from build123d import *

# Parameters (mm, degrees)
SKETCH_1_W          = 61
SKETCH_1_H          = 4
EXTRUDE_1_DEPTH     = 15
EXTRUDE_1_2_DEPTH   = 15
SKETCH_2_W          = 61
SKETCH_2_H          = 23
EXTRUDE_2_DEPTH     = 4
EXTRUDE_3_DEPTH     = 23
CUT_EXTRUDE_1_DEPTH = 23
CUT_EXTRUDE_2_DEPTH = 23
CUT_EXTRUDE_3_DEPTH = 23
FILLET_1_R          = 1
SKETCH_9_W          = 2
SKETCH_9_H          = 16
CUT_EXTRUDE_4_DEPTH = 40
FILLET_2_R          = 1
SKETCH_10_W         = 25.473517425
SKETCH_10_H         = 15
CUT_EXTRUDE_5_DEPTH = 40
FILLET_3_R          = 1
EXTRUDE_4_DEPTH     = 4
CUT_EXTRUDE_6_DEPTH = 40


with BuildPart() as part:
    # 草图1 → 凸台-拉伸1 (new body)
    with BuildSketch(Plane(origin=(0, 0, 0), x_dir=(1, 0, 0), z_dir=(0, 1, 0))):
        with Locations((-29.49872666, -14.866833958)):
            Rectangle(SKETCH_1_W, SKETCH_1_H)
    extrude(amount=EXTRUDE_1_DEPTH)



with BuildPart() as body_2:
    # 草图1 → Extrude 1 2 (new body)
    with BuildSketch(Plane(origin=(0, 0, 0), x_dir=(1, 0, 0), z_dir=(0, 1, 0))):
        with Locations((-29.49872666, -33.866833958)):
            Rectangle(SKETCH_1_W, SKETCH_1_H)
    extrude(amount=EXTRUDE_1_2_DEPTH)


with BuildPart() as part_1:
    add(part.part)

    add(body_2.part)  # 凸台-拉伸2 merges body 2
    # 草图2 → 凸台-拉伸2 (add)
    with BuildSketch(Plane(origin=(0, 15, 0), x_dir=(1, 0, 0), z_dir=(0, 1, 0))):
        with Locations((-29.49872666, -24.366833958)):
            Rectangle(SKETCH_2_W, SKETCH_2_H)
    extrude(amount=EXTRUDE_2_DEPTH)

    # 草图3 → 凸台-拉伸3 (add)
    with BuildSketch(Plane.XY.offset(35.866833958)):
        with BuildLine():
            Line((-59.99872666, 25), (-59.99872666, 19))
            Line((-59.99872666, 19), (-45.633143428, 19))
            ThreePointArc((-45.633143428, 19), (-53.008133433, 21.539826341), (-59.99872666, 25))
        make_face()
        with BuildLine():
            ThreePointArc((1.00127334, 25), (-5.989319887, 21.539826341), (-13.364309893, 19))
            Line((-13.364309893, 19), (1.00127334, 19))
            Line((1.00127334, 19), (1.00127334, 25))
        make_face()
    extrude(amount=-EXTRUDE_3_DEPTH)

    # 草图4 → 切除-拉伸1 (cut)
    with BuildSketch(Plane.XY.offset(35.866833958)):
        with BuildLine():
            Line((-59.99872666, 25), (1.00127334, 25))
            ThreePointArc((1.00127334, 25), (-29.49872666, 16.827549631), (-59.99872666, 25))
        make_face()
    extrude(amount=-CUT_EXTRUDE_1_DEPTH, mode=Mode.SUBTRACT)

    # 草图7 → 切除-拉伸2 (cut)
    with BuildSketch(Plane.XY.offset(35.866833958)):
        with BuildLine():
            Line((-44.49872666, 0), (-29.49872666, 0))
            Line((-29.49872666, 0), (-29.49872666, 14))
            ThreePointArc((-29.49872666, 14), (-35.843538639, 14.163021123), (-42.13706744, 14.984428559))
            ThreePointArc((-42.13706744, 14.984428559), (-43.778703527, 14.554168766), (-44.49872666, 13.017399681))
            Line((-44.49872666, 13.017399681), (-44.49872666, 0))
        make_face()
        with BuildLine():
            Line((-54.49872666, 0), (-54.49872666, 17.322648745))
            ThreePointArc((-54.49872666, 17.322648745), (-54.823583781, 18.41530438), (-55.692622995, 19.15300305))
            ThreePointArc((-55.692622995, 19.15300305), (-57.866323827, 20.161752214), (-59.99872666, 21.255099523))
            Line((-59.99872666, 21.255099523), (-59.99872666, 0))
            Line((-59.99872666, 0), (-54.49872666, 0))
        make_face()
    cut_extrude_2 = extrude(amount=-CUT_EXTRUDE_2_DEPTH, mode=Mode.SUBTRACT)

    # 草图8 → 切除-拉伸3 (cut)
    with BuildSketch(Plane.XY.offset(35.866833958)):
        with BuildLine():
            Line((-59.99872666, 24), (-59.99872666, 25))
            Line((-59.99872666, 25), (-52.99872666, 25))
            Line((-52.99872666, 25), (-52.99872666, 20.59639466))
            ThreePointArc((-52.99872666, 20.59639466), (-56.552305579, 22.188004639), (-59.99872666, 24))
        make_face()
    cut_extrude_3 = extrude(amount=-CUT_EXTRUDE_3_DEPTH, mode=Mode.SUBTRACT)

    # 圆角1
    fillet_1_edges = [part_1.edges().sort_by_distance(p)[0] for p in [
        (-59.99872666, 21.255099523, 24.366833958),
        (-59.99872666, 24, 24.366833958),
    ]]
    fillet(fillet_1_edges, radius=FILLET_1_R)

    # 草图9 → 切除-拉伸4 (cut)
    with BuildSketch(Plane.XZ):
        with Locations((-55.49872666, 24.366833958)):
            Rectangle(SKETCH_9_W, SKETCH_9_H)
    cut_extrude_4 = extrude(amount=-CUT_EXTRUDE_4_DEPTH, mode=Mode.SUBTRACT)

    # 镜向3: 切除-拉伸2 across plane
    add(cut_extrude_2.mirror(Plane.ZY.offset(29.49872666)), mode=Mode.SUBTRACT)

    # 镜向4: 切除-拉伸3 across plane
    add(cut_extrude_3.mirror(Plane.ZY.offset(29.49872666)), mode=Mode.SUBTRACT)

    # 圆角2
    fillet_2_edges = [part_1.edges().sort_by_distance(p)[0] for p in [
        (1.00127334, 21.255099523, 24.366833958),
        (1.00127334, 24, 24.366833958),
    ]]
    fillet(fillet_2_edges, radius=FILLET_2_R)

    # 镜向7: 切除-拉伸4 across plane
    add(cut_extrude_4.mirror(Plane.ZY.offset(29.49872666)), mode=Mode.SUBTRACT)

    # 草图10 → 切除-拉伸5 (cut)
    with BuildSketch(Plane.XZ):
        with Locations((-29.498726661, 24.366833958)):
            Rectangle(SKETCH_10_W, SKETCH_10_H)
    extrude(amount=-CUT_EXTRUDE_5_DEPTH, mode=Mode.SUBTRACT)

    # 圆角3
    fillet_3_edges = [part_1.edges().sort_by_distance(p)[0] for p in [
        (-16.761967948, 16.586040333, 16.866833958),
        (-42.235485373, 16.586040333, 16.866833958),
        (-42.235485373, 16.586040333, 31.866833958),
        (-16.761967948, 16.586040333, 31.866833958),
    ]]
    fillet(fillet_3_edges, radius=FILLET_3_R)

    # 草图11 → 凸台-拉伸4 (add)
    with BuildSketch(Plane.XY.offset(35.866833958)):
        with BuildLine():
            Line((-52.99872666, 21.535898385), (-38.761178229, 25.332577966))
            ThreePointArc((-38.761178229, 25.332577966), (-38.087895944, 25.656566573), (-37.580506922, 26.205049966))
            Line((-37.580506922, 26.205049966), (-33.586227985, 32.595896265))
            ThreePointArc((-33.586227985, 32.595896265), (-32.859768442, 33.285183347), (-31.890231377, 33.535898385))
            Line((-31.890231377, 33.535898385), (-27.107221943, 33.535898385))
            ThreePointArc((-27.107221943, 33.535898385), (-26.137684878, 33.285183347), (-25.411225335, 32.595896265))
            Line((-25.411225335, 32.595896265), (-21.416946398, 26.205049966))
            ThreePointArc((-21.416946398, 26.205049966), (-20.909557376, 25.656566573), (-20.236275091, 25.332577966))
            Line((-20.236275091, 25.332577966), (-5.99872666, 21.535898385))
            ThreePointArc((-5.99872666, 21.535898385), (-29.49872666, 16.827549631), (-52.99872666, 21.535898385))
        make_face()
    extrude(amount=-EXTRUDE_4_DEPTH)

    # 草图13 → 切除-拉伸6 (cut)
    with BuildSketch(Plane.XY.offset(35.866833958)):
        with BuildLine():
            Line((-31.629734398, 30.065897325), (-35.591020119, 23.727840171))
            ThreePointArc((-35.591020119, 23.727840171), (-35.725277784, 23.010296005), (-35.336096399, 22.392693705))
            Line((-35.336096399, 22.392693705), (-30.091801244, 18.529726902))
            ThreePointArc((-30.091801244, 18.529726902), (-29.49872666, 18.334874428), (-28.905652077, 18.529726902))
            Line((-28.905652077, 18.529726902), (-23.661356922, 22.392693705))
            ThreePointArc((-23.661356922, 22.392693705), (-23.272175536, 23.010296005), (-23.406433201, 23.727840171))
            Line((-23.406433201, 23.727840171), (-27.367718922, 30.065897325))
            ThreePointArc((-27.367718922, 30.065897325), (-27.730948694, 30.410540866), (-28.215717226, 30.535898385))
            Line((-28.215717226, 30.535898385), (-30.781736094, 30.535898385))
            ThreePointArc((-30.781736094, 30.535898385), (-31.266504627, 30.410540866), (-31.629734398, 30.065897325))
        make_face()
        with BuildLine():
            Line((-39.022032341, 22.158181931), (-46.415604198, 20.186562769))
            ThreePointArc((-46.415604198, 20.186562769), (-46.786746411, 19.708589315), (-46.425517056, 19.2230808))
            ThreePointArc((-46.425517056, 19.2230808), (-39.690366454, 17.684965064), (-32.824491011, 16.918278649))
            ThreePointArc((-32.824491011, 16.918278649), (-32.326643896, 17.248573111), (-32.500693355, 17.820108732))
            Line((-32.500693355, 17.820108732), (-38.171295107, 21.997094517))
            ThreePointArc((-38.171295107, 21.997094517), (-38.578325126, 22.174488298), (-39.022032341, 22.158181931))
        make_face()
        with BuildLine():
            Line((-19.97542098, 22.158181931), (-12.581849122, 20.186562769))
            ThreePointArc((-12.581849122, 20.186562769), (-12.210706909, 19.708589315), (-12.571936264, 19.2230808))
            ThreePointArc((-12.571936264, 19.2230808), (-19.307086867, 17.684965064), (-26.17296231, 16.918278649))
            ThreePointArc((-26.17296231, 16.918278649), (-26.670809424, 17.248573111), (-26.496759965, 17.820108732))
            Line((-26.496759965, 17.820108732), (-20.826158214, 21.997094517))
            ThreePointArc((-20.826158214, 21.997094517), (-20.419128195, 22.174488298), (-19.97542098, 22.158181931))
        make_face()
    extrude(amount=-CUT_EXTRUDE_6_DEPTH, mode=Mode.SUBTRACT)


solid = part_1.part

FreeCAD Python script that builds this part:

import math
import FreeCAD as App
import Part
import Sketcher

V = App.Vector
Q = App.Units.Quantity


def edges_at(feature, points):
    """Names of the edges that pass closest to the given points."""
    edges = feature.Shape.Edges
    near = lambda p: min(range(len(edges)), key=lambda i: edges[i].distToShape(Part.Vertex(*p))[0])
    return sorted({f"Edge{near(p) + 1}" for p in points})

doc = App.newDocument("Part")
body = doc.addObject("PartDesign::Body", "Body")

sketch1 = body.newObject("Sketcher::SketchObject", "Sketch")
sketch1.AttachmentSupport = (doc.getObject("XZ_Plane"), [""])
sketch1.MapMode = "FlatFace"
sketch1.addGeometry(Part.LineSegment(V(-60, 12.9, 0), V(-60, 16.9, 0)), False)
sketch1.addGeometry(Part.LineSegment(V(-60, 16.9, 0), V(1, 16.9, 0)), False)
sketch1.addGeometry(Part.LineSegment(V(1, 16.9, 0), V(1, 12.9, 0)), False)
sketch1.addGeometry(Part.LineSegment(V(1, 12.9, 0), V(-60, 12.9, 0)), False)
sketch1.addConstraint(Sketcher.Constraint("Coincident", 0, 2, 1, 1))
sketch1.addConstraint(Sketcher.Constraint("Coincident", 1, 2, 2, 1))
sketch1.addConstraint(Sketcher.Constraint("Coincident", 2, 2, 3, 1))
sketch1.addConstraint(Sketcher.Constraint("Coincident", 3, 2, 0, 1))
sketch1.addConstraint(Sketcher.Constraint("Vertical", 0))
sketch1.addConstraint(Sketcher.Constraint("Horizontal", 1))
sketch1.addConstraint(Sketcher.Constraint("Vertical", 2))
sketch1.addConstraint(Sketcher.Constraint("Horizontal", 3))
sketch1.addConstraint(Sketcher.Constraint("DistanceX", 1, 1, 1, 2, Q("61 mm")))
sketch1.addConstraint(Sketcher.Constraint("DistanceY", 0, 1, 0, 2, Q("4 mm")))
sketch1.addConstraint(Sketcher.Constraint("DistanceX", 0, 2, -1, 1, Q("59.998727 mm")))
sketch1.addConstraint(Sketcher.Constraint("DistanceY", -1, 1, 0, 2, Q("16.866834 mm")))
pad1 = body.newObject("PartDesign::Pad", "Pad")
pad1.Profile = sketch1
pad1.Length = 15
pad1.Reversed = True
body2 = doc.addObject("PartDesign::Body", "Body001")

sketch2 = body2.newObject("Sketcher::SketchObject", "Sketch001")
sketch2.AttachmentSupport = (doc.getObject("XZ_Plane001"), [""])
sketch2.MapMode = "FlatFace"
sketch2.addGeometry(Part.LineSegment(V(-60, 31.9, 0), V(-60, 35.9, 0)), False)
sketch2.addGeometry(Part.LineSegment(V(-60, 35.9, 0), V(1, 35.9, 0)), False)
sketch2.addGeometry(Part.LineSegment(V(1, 35.9, 0), V(1, 31.9, 0)), False)
sketch2.addGeometry(Part.LineSegment(V(1, 31.9, 0), V(-60, 31.9, 0)), False)
sketch2.addConstraint(Sketcher.Constraint("Coincident", 0, 2, 1, 1))
sketch2.addConstraint(Sketcher.Constraint("Coincident", 1, 2, 2, 1))
sketch2.addConstraint(Sketcher.Constraint("Coincident", 2, 2, 3, 1))
sketch2.addConstraint(Sketcher.Constraint("Coincident", 3, 2, 0, 1))
sketch2.addConstraint(Sketcher.Constraint("Vertical", 0))
sketch2.addConstraint(Sketcher.Constraint("Horizontal", 1))
sketch2.addConstraint(Sketcher.Constraint("Vertical", 2))
sketch2.addConstraint(Sketcher.Constraint("Horizontal", 3))
sketch2.addConstraint(Sketcher.Constraint("DistanceX", 1, 1, 1, 2, Q("61 mm")))
sketch2.addConstraint(Sketcher.Constraint("DistanceY", 0, 1, 0, 2, Q("4 mm")))
sketch2.addConstraint(Sketcher.Constraint("DistanceX", 0, 2, -1, 1, Q("59.998727 mm")))
sketch2.addConstraint(Sketcher.Constraint("DistanceY", -1, 1, 0, 2, Q("35.866834 mm")))
pad2 = body2.newObject("PartDesign::Pad", "Pad001")
pad2.Profile = sketch2
pad2.Length = 15
pad2.Reversed = True
body.AllowCompound = True
doc.recompute()

boolean = body.newObject("PartDesign::Boolean", "Boolean")
boolean.Type = "Fuse"
boolean.addObjects([body2])

sketch3 = body.newObject("Sketcher::SketchObject", "Sketch002")
sketch3.AttachmentSupport = (doc.getObject("XZ_Plane"), [""])
sketch3.MapMode = "FlatFace"
sketch3.AttachmentOffset = App.Placement(V(0, 0, -15), App.Rotation())
sketch3.addGeometry(Part.LineSegment(V(-60, 13, 0), V(-60, 36, 0)), False)
sketch3.addGeometry(Part.LineSegment(V(-60, 36, 0), V(1, 36, 0)), False)
sketch3.addGeometry(Part.LineSegment(V(1, 36, 0), V(1, 13, 0)), False)
sketch3.addGeometry(Part.LineSegment(V(1, 13, 0), V(-60, 13, 0)), False)
sketch3.addConstraint(Sketcher.Constraint("Coincident", 0, 2, 1, 1))
sketch3.addConstraint(Sketcher.Constraint("Coincident", 1, 2, 2, 1))
sketch3.addConstraint(Sketcher.Constraint("Coincident", 2, 2, 3, 1))
sketch3.addConstraint(Sketcher.Constraint("Coincident", 3, 2, 0, 1))
sketch3.addConstraint(Sketcher.Constraint("Vertical", 0))
sketch3.addConstraint(Sketcher.Constraint("Horizontal", 1))
sketch3.addConstraint(Sketcher.Constraint("Vertical", 2))
sketch3.addConstraint(Sketcher.Constraint("Horizontal", 3))
sketch3.addConstraint(Sketcher.Constraint("DistanceX", 1, 1, 1, 2, Q("61 mm")))
sketch3.addConstraint(Sketcher.Constraint("DistanceY", 0, 1, 0, 2, Q("23 mm")))
sketch3.addConstraint(Sketcher.Constraint("DistanceX", 0, 2, -1, 1, Q("59.998727 mm")))
sketch3.addConstraint(Sketcher.Constraint("DistanceY", -1, 1, 0, 2, Q("35.866834 mm")))
pad3 = body.newObject("PartDesign::Pad", "Pad002")
pad3.Profile = sketch3
pad3.Length = 4
pad3.Reversed = True

sketch4 = body.newObject("Sketcher::SketchObject", "Sketch003")
sketch4.AttachmentSupport = (doc.getObject("XY_Plane"), [""])
sketch4.MapMode = "FlatFace"
sketch4.AttachmentOffset = App.Placement(V(0, 0, 35.866834), App.Rotation())
sketch4.addGeometry(Part.LineSegment(V(-60, 25, 0), V(-60, 19, 0)), False)
sketch4.addGeometry(Part.LineSegment(V(-60, 19, 0), V(-46, 19, 0)), False)
sketch4.addGeometry(Part.ArcOfCircle(Part.Circle(V(-29, 78, 0), V(0, 0, 1), 61), math.radians(-120), math.radians(-105.34)), False)
sketch4.addGeometry(Part.ArcOfCircle(Part.Circle(V(-29, 78, 0), V(0, 0, 1), 61), math.radians(-74.66), math.radians(-60)), False)
sketch4.addGeometry(Part.LineSegment(V(-13, 19, 0), V(1, 19, 0)), False)
sketch4.addGeometry(Part.LineSegment(V(1, 19, 0), V(1, 25, 0)), False)
sketch4.addConstraint(Sketcher.Constraint("Coincident", 0, 2, 1, 1))
sketch4.addConstraint(Sketcher.Constraint("Coincident", 1, 2, 2, 2))
sketch4.addConstraint(Sketcher.Constraint("Coincident", 2, 1, 0, 1))
sketch4.addConstraint(Sketcher.Constraint("Coincident", 3, 1, 4, 1))
sketch4.addConstraint(Sketcher.Constraint("Coincident", 4, 2, 5, 1))
sketch4.addConstraint(Sketcher.Constraint("Coincident", 5, 2, 3, 2))
sketch4.addConstraint(Sketcher.Constraint("Vertical", 0))
sketch4.addConstraint(Sketcher.Constraint("Horizontal", 1))
sketch4.addConstraint(Sketcher.Constraint("Horizontal", 4))
sketch4.addConstraint(Sketcher.Constraint("Vertical", 5))
sketch4.addConstraint(Sketcher.Constraint("Coincident", 3, 3, 2, 3))
sketch4.addConstraint(Sketcher.Constraint("Equal", 2, 3))
sketch4.addConstraint(Sketcher.Constraint("Horizontal", 1, 2, 3, 1))
sketch4.addConstraint(Sketcher.Constraint("Horizontal", 2, 1, 5, 2))
sketch4.addConstraint(Sketcher.Constraint("Radius", 2, Q("61 mm")))
sketch4.addConstraint(Sketcher.Constraint("DistanceY", 0, 2, 0, 1, Q("6 mm")))
sketch4.addConstraint(Sketcher.Constraint("DistanceY", -1, 1, 0, 2, Q("19 mm")))
sketch4.addConstraint(Sketcher.Constraint("DistanceX", 0, 2, 4, 2, Q("61 mm")))
sketch4.addConstraint(Sketcher.Constraint("DistanceX", 3, 1, -1, 1, Q("13.36431 mm")))
pad4 = body.newObject("PartDesign::Pad", "Pad003")
pad4.Profile = sketch4
pad4.Length = 23
pad4.Reversed = True

sketch5 = body.newObject("Sketcher::SketchObject", "Sketch004")
sketch5.AttachmentSupport = (doc.getObject("XY_Plane"), [""])
sketch5.MapMode = "FlatFace"
sketch5.AttachmentOffset = App.Placement(V(0, 0, 35.866834), App.Rotation())
sketch5.addGeometry(Part.LineSegment(V(1, 25, 0), V(-60, 25, 0)), False)
sketch5.addGeometry(Part.ArcOfCircle(Part.Circle(V(-29, 78, 0), V(0, 0, 1), 61), math.radians(-120), math.radians(-60)), False)
sketch5.addConstraint(Sketcher.Constraint("Coincident", 0, 1, 1, 2))
sketch5.addConstraint(Sketcher.Constraint("Coincident", 1, 1, 0, 2))
sketch5.addConstraint(Sketcher.Constraint("Horizontal", 0))
sketch5.addConstraint(Sketcher.Constraint("Radius", 1, Q("61 mm")))
sketch5.addConstraint(Sketcher.Constraint("DistanceX", 0, 2, 0, 1, Q("61 mm")))
sketch5.addConstraint(Sketcher.Constraint("DistanceY", -1, 1, 0, 1, Q("25 mm")))
sketch5.addConstraint(Sketcher.Constraint("DistanceX", 1, 3, -1, 1, Q("29.498727 mm")))
pocket1 = body.newObject("PartDesign::Pocket", "Pocket")
pocket1.Profile = sketch5
pocket1.Length = 23

sketch6 = body.newObject("Sketcher::SketchObject", "Sketch005")
sketch6.AttachmentSupport = (doc.getObject("XY_Plane"), [""])
sketch6.MapMode = "FlatFace"
sketch6.AttachmentOffset = App.Placement(V(0, 0, 35.866834), App.Rotation())
sketch6.addGeometry(Part.LineSegment(V(-44.5, 0, 0), V(-29.5, 0, 0)), False)
sketch6.addGeometry(Part.LineSegment(V(-29.5, 0, 0), V(-29.5, 14, 0)), False)
sketch6.addGeometry(Part.ArcOfCircle(Part.Circle(V(-31.1, 75, 0), V(0, 0, 1), 61), math.radians(-100.42), math.radians(-88.49)), False)
sketch6.addGeometry(Part.ArcOfCircle(Part.Circle(V(-42.5, 13, 0), V(0, 0, 1), 2), math.radians(80), math.radians(180)), False)
sketch6.addGeometry(Part.LineSegment(V(-44.5, 13, 0), V(-44.5, 0, 0)), False)
sketch6.addGeometry(Part.LineSegment(V(-54.5, 0, 0), V(-54.5, 17.3, 0)), False)
sketch6.addGeometry(Part.ArcOfCircle(Part.Circle(V(-56.5, 17.3, 0), V(0, 0, 1), 2), math.radians(0), math.radians(66)), False)
sketch6.addGeometry(Part.ArcOfCircle(Part.Circle(V(-31.1, 75, 0), V(0, 0, 1), 61), math.radians(-118.27), math.radians(-113.77)), False)
sketch6.addGeometry(Part.LineSegment(V(-60, 21.3, 0), V(-60, 0, 0)), False)
sketch6.addGeometry(Part.LineSegment(V(-60, 0, 0), V(-54.5, 0, 0)), False)
sketch6.addConstraint(Sketcher.Constraint("Coincident", 0, 2, 1, 1))
sketch6.addConstraint(Sketcher.Constraint("Coincident", 1, 2, 2, 2))
sketch6.addConstraint(Sketcher.Constraint("Tangent", 2, 1, 3, 1))
sketch6.addConstraint(Sketcher.Constraint("Tangent", 3, 2, 4, 1))
sketch6.addConstraint(Sketcher.Constraint("Coincident", 4, 2, 0, 1))
sketch6.addConstraint(Sketcher.Constraint("Tangent", 5, 2, 6, 1))
sketch6.addConstraint(Sketcher.Constraint("Tangent", 6, 2, 7, 2))
sketch6.addConstraint(Sketcher.Constraint("Coincident", 7, 1, 8, 1))
sketch6.addConstraint(Sketcher.Constraint("Coincident", 8, 2, 9, 1))
sketch6.addConstraint(Sketcher.Constraint("Coincident", 9, 2, 5, 1))
sketch6.addConstraint(Sketcher.Constraint("Horizontal", 0))
sketch6.addConstraint(Sketcher.Constraint("Vertical", 1))
sketch6.addConstraint(Sketcher.Constraint("Vertical", 4))
sketch6.addConstraint(Sketcher.Constraint("Vertical", 5))
sketch6.addConstraint(Sketcher.Constraint("Vertical", 8))
sketch6.addConstraint(Sketcher.Constraint("Horizontal", 9))
sketch6.addConstraint(Sketcher.Constraint("Coincident", 7, 3, 2, 3))
sketch6.addConstraint(Sketcher.Constraint("Equal", 3, 6))
sketch6.addConstraint(Sketcher.Constraint("Equal", 2, 7))
sketch6.addConstraint(Sketcher.Constraint("PointOnObject", 0, 2, -1))
sketch6.addConstraint(Sketcher.Constraint("PointOnObject", 8, 2, -1))
sketch6.addConstraint(Sketcher.Constraint("Radius", 2, Q("61 mm")))
sketch6.addConstraint(Sketcher.Constraint("Radius", 3, Q("2 mm")))
sketch6.addConstraint(Sketcher.Constraint("DistanceX", 0, 1, 0, 2, Q("15 mm")))
sketch6.addConstraint(Sketcher.Constraint("DistanceY", 1, 1, 1, 2, Q("14 mm")))
sketch6.addConstraint(Sketcher.Constraint("DistanceX", 9, 1, 9, 2, Q("5.5 mm")))
sketch6.addConstraint(Sketcher.Constraint("DistanceX", 6, 3, 3, 3, Q("14 mm")))
sketch6.addConstraint(Sketcher.Constraint("DistanceY", 4, 2, 4, 1, Q("13.0174 mm")))
sketch6.addConstraint(Sketcher.Constraint("DistanceX", 2, 3, -1, 1, Q("31.106461 mm")))
pocket2 = body.newObject("PartDesign::Pocket", "Pocket001")
pocket2.Profile = sketch6
pocket2.Length = 23

sketch7 = body.newObject("Sketcher::SketchObject", "Sketch006")
sketch7.AttachmentSupport = (doc.getObject("XY_Plane"), [""])
sketch7.MapMode = "FlatFace"
sketch7.AttachmentOffset = App.Placement(V(0, 0, 35.866834), App.Rotation())
sketch7.addGeometry(Part.LineSegment(V(-60, 25, 0), V(-60, 24, 0)), False)
sketch7.addGeometry(Part.ArcOfCircle(Part.Circle(V(-29.5, 77.8, 0), V(0, 0, 1), 61.9), math.radians(-119.54), math.radians(-112.32)), False)
sketch7.addGeometry(Part.LineSegment(V(-53, 20.6, 0), V(-53, 25, 0)), False)
sketch7.addGeometry(Part.LineSegment(V(-53, 25, 0), V(-60, 25, 0)), False)
sketch7.addConstraint(Sketcher.Constraint("Coincident", 0, 2, 1, 1))
sketch7.addConstraint(Sketcher.Constraint("Coincident", 1, 2, 2, 1))
sketch7.addConstraint(Sketcher.Constraint("Coincident", 2, 2, 3, 1))
sketch7.addConstraint(Sketcher.Constraint("Coincident", 3, 2, 0, 1))
sketch7.addConstraint(Sketcher.Constraint("Vertical", 0))
sketch7.addConstraint(Sketcher.Constraint("Vertical", 2))
sketch7.addConstraint(Sketcher.Constraint("Horizontal", 3))
sketch7.addConstraint(Sketcher.Constraint("DistanceX", 3, 2, 3, 1, Q("7 mm")))
sketch7.addConstraint(Sketcher.Constraint("DistanceY", 0, 2, 0, 1, Q("1 mm")))
sketch7.addConstraint(Sketcher.Constraint("DistanceY", -1, 1, 0, 2, Q("24 mm")))
sketch7.addConstraint(Sketcher.Constraint("DistanceX", 0, 2, 1, 3, Q("30.5 mm")))
sketch7.addConstraint(Sketcher.Constraint("Radius", 1, Q("61.868046 mm")))
sketch7.addConstraint(Sketcher.Constraint("DistanceX", 1, 3, -1, 1, Q("29.498727 mm")))
pocket3 = body.newObject("PartDesign::Pocket", "Pocket002")
pocket3.Profile = sketch7
pocket3.Length = 23
doc.recompute()

fillet = body.newObject("PartDesign::Fillet", "Fillet")
fillet.Base = (pocket3, edges_at(pocket3, [(-59.999, 21.255, 24.367), (-59.999, 24, 24.367)]))
fillet.Radius = 1

sketch8 = body.newObject("Sketcher::SketchObject", "Sketch007")
sketch8.AttachmentSupport = (doc.getObject("XZ_Plane"), [""])
sketch8.MapMode = "FlatFace"
sketch8.addGeometry(Part.LineSegment(V(-56.5, 32.4, 0), V(-56.5, 16.4, 0)), False)
sketch8.addGeometry(Part.LineSegment(V(-56.5, 16.4, 0), V(-54.5, 16.4, 0)), False)
sketch8.addGeometry(Part.LineSegment(V(-54.5, 16.4, 0), V(-54.5, 32.4, 0)), False)
sketch8.addGeometry(Part.LineSegment(V(-54.5, 32.4, 0), V(-56.5, 32.4, 0)), False)
sketch8.addConstraint(Sketcher.Constraint("Coincident", 0, 2, 1, 1))
sketch8.addConstraint(Sketcher.Constraint("Coincident", 1, 2, 2, 1))
sketch8.addConstraint(Sketcher.Constraint("Coincident", 2, 2, 3, 1))
sketch8.addConstraint(Sketcher.Constraint("Coincident", 3, 2, 0, 1))
sketch8.addConstraint(Sketcher.Constraint("Vertical", 0))
sketch8.addConstraint(Sketcher.Constraint("Horizontal", 1))
sketch8.addConstraint(Sketcher.Constraint("Vertical", 2))
sketch8.addConstraint(Sketcher.Constraint("Horizontal", 3))
sketch8.addConstraint(Sketcher.Constraint("DistanceX", 1, 1, 1, 2, Q("2 mm")))
sketch8.addConstraint(Sketcher.Constraint("DistanceY", 0, 2, 0, 1, Q("16 mm")))
sketch8.addConstraint(Sketcher.Constraint("DistanceX", 0, 2, -1, 1, Q("56.498727 mm")))
sketch8.addConstraint(Sketcher.Constraint("DistanceY", -1, 1, 0, 2, Q("16.366834 mm")))
pocket4 = body.newObject("PartDesign::Pocket", "Pocket003")
pocket4.Profile = sketch8
pocket4.Length = 40
doc.recompute()

datumplane = body.newObject("PartDesign::Plane", "DatumPlane")
datumplane.AttachmentSupport = (doc.getObject("YZ_Plane"), [""])
datumplane.MapMode = "FlatFace"
datumplane.AttachmentOffset = App.Placement(V(0, 0, -29.498727), App.Rotation())
mirrored = body.newObject("PartDesign::Mirrored", "Mirrored")
mirrored.Originals = [pocket2]
mirrored.MirrorPlane = (datumplane, [""])
body.Tip = mirrored
doc.recompute()

datumplane2 = body.newObject("PartDesign::Plane", "DatumPlane001")
datumplane2.AttachmentSupport = (doc.getObject("YZ_Plane"), [""])
datumplane2.MapMode = "FlatFace"
datumplane2.AttachmentOffset = App.Placement(V(0, 0, -29.498727), App.Rotation())
mirrored2 = body.newObject("PartDesign::Mirrored", "Mirrored001")
mirrored2.Originals = [pocket3]
mirrored2.MirrorPlane = (datumplane2, [""])
body.Tip = mirrored2
doc.recompute()

fillet2 = body.newObject("PartDesign::Fillet", "Fillet001")
fillet2.Base = (mirrored2, edges_at(mirrored2, [(1.001, 21.255, 24.367), (1.001, 24, 24.367)]))
fillet2.Radius = 1
doc.recompute()

datumplane3 = body.newObject("PartDesign::Plane", "DatumPlane002")
datumplane3.AttachmentSupport = (doc.getObject("YZ_Plane"), [""])
datumplane3.MapMode = "FlatFace"
datumplane3.AttachmentOffset = App.Placement(V(0, 0, -29.498727), App.Rotation())
mirrored3 = body.newObject("PartDesign::Mirrored", "Mirrored002")
mirrored3.Originals = [pocket4]
mirrored3.MirrorPlane = (datumplane3, [""])
body.Tip = mirrored3

sketch9 = body.newObject("Sketcher::SketchObject", "Sketch008")
sketch9.AttachmentSupport = (doc.getObject("XZ_Plane"), [""])
sketch9.MapMode = "FlatFace"
sketch9.addGeometry(Part.LineSegment(V(-42, 32, 0), V(-42, 17, 0)), False)
sketch9.addGeometry(Part.LineSegment(V(-42, 17, 0), V(-17, 17, 0)), False)
sketch9.addGeometry(Part.LineSegment(V(-17, 17, 0), V(-17, 32, 0)), False)
sketch9.addGeometry(Part.LineSegment(V(-17, 32, 0), V(-42, 32, 0)), False)
sketch9.addConstraint(Sketcher.Constraint("Coincident", 0, 2, 1, 1))
sketch9.addConstraint(Sketcher.Constraint("Coincident", 1, 2, 2, 1))
sketch9.addConstraint(Sketcher.Constraint("Coincident", 2, 2, 3, 1))
sketch9.addConstraint(Sketcher.Constraint("Coincident", 3, 2, 0, 1))
sketch9.addConstraint(Sketcher.Constraint("Vertical", 0))
sketch9.addConstraint(Sketcher.Constraint("Horizontal", 1))
sketch9.addConstraint(Sketcher.Constraint("Vertical", 2))
sketch9.addConstraint(Sketcher.Constraint("Horizontal", 3))
sketch9.addConstraint(Sketcher.Constraint("DistanceY", 0, 2, 0, 1, Q("15 mm")))
sketch9.addConstraint(Sketcher.Constraint("DistanceX", 1, 1, 1, 2, Q("25.473517 mm")))
sketch9.addConstraint(Sketcher.Constraint("DistanceX", 0, 2, -1, 1, Q("42.235485 mm")))
sketch9.addConstraint(Sketcher.Constraint("DistanceY", -1, 1, 0, 2, Q("16.866834 mm")))
pocket5 = body.newObject("PartDesign::Pocket", "Pocket004")
pocket5.Profile = sketch9
pocket5.Length = 40
doc.recompute()

fillet3 = body.newObject("PartDesign::Fillet", "Fillet002")
fillet3.Base = (pocket5, edges_at(pocket5, [
    (-16.762, 16.586, 16.867),
    (-42.235, 16.586, 16.867),
    (-42.235, 16.586, 31.867),
    (-16.762, 16.586, 31.867),
]))
fillet3.Radius = 1

sketch10 = body.newObject("Sketcher::SketchObject", "Sketch009")
sketch10.AttachmentSupport = (doc.getObject("XY_Plane"), [""])
sketch10.MapMode = "FlatFace"
sketch10.AttachmentOffset = App.Placement(V(0, 0, 35.866834), App.Rotation())
sketch10.addGeometry(Part.LineSegment(V(-38.8, 25.3, 0), V(-53, 21.5, 0)), False)
sketch10.addGeometry(Part.ArcOfCircle(Part.Circle(V(-29.5, 77.8, 0), V(0, 0, 1), 61), math.radians(-113), math.radians(-67)), False)
sketch10.addGeometry(Part.LineSegment(V(-6, 21.5, 0), V(-20.2, 25.3, 0)), False)
sketch10.addGeometry(Part.ArcOfCircle(Part.Circle(V(-19.7, 27.3, 0), V(0, 0, 1), 2), math.radians(-148), math.radians(-105)), False)
sketch10.addGeometry(Part.LineSegment(V(-21.4, 26.2, 0), V(-25.4, 32.6, 0)), False)
sketch10.addGeometry(Part.ArcOfCircle(Part.Circle(V(-27.1, 31.5, 0), V(0, 0, 1), 2), math.radians(32), math.radians(90)), False)
sketch10.addGeometry(Part.LineSegment(V(-27.1, 33.5, 0), V(-31.9, 33.5, 0)), False)
sketch10.addGeometry(Part.ArcOfCircle(Part.Circle(V(-31.9, 31.5, 0), V(0, 0, 1), 2), math.radians(90), math.radians(148)), False)
sketch10.addGeometry(Part.LineSegment(V(-33.6, 32.6, 0), V(-37.6, 26.2, 0)), False)
sketch10.addGeometry(Part.ArcOfCircle(Part.Circle(V(-39.3, 27.3, 0), V(0, 0, 1), 2), math.radians(-75), math.radians(-32)), False)
sketch10.addConstraint(Sketcher.Constraint("Coincident", 0, 2, 1, 1))
sketch10.addConstraint(Sketcher.Constraint("Coincident", 1, 2, 2, 1))
sketch10.addConstraint(Sketcher.Constraint("Tangent", 2, 2, 3, 2))
sketch10.addConstraint(Sketcher.Constraint("Tangent", 3, 1, 4, 1))
sketch10.addConstraint(Sketcher.Constraint("Tangent", 4, 2, 5, 1))
sketch10.addConstraint(Sketcher.Constraint("Tangent", 5, 2, 6, 1))
sketch10.addConstraint(Sketcher.Constraint("Tangent", 6, 2, 7, 1))
sketch10.addConstraint(Sketcher.Constraint("Tangent", 7, 2, 8, 1))
sketch10.addConstraint(Sketcher.Constraint("Tangent", 8, 2, 9, 2))
sketch10.addConstraint(Sketcher.Constraint("Tangent", 9, 1, 0, 1))
sketch10.addConstraint(Sketcher.Constraint("Horizontal", 6))
sketch10.addConstraint(Sketcher.Constraint("Equal", 3, 5))
sketch10.addConstraint(Sketcher.Constraint("Equal", 5, 7))
sketch10.addConstraint(Sketcher.Constraint("Equal", 7, 9))
sketch10.addConstraint(Sketcher.Constraint("Horizontal", 3, 3, 9, 3))
sketch10.addConstraint(Sketcher.Constraint("Horizontal", 0, 2, 1, 2))
sketch10.addConstraint(Sketcher.Constraint("Horizontal", 4, 2, 7, 2))
sketch10.addConstraint(Sketcher.Constraint("Horizontal", 2, 2, 9, 1))
sketch10.addConstraint(Sketcher.Constraint("Radius", 1, Q("61 mm")))
sketch10.addConstraint(Sketcher.Constraint("Radius", 3, Q("2 mm")))
sketch10.addConstraint(Sketcher.Constraint("DistanceY", 0, 2, 7, 3, Q("10 mm")))
sketch10.addConstraint(Sketcher.Constraint("DistanceX", 0, 2, 1, 2, Q("47 mm")))
sketch10.addConstraint(Sketcher.Constraint("DistanceX", 6, 2, 6, 1, Q("4.783009 mm")))
sketch10.addConstraint(Sketcher.Constraint("DistanceY", -1, 1, 5, 3, Q("31.535898 mm")))
sketch10.addConstraint(Sketcher.Constraint("DistanceY", 3, 3, 1, 3, Q("50.562502 mm")))
sketch10.addConstraint(Sketcher.Constraint("Distance", 0, Q("14.735079 mm")))
sketch10.addConstraint(Sketcher.Constraint("DistanceX", 3, 3, -1, 1, Q("19.72095 mm")))
pad5 = body.newObject("PartDesign::Pad", "Pad004")
pad5.Profile = sketch10
pad5.Length = 4
pad5.Reversed = True

sketch11 = body.newObject("Sketcher::SketchObject", "Sketch010")
sketch11.AttachmentSupport = (doc.getObject("XY_Plane"), [""])
sketch11.MapMode = "FlatFace"
sketch11.AttachmentOffset = App.Placement(V(0, 0, 35.866834), App.Rotation())
sketch11.addGeometry(Part.LineSegment(V(-31.629734, 30.065897, 0), V(-35.59102, 23.72784, 0)), False)
sketch11.addGeometry(Part.ArcOfCircle(Part.Circle(V(-34.743022, 23.197841, 0), V(0, 0, 1), 1), math.radians(147.994617), math.radians(233.624505)), False)
sketch11.addGeometry(Part.LineSegment(V(-35.336096, 22.392694, 0), V(-30.091801, 18.529727, 0)), False)
sketch11.addGeometry(Part.ArcOfCircle(Part.Circle(V(-29.498727, 19.334874, 0), V(0, 0, 1), 1), math.radians(-126.375495), math.radians(-53.624505)), False)
sketch11.addGeometry(Part.LineSegment(V(-28.905652, 18.529727, 0), V(-23.661357, 22.392694, 0)), False)
sketch11.addGeometry(Part.ArcOfCircle(Part.Circle(V(-24.254432, 23.197841, 0), V(0, 0, 1), 1), math.radians(-53.624505), math.radians(32.005383)), False)
sketch11.addGeometry(Part.LineSegment(V(-23.406433, 23.72784, 0), V(-27.367719, 30.065897, 0)), False)
sketch11.addGeometry(Part.ArcOfCircle(Part.Circle(V(-28.215717, 29.535898, 0), V(0, 0, 1), 1), math.radians(32.005383), math.radians(90)), False)
sketch11.addGeometry(Part.LineSegment(V(-28.215717, 30.535898, 0), V(-30.781736, 30.535898, 0)), False)
sketch11.addGeometry(Part.ArcOfCircle(Part.Circle(V(-30.781736, 29.535898, 0), V(0, 0, 1), 1), math.radians(90), math.radians(147.994617)), False)
sketch11.addGeometry(Part.LineSegment(V(-39.022032, 22.158182, 0), V(-46.415604, 20.186563, 0)), False)
sketch11.addGeometry(Part.ArcOfCircle(Part.Circle(V(-46.286773, 19.703445, 0), V(0, 0, 1), 0.5), math.radians(104.931417), math.radians(253.88964)), False)
sketch11.addGeometry(Part.ArcOfCircle(Part.Circle(V(-29.498727, 77.82755, 0), V(0, 0, 1), 61), math.radians(-106.11036), math.radians(-93.125357)), False)
sketch11.addGeometry(Part.ArcOfCircle(Part.Circle(V(-32.797231, 17.417535, 0), V(0, 0, 1), 0.5), math.radians(-93.125357), math.radians(53.624505)), False)
sketch11.addGeometry(Part.LineSegment(V(-32.500693, 17.820109, 0), V(-38.171295, 21.997095, 0)), False)
sketch11.addGeometry(Part.ArcOfCircle(Part.Circle(V(-38.76437, 21.191947, 0), V(0, 0, 1), 1), math.radians(53.624505), math.radians(104.931417)), False)
sketch11.addGeometry(Part.LineSegment(V(-12.581849, 20.186563, 0), V(-19.975421, 22.158182, 0)), False)
sketch11.addGeometry(Part.ArcOfCircle(Part.Circle(V(-20.233084, 21.191947, 0), V(0, 0, 1), 1), math.radians(75.068583), math.radians(126.375495)), False)
sketch11.addGeometry(Part.LineSegment(V(-20.826158, 21.997095, 0), V(-26.49676, 17.820109, 0)), False)
sketch11.addGeometry(Part.ArcOfCircle(Part.Circle(V(-26.200223, 17.417535, 0), V(0, 0, 1), 0.5), math.radians(126.375495), math.radians(273.125357)), False)
sketch11.addGeometry(Part.ArcOfCircle(Part.Circle(V(-29.498727, 77.82755, 0), V(0, 0, 1), 61), math.radians(-86.874643), math.radians(-73.88964)), False)
sketch11.addGeometry(Part.ArcOfCircle(Part.Circle(V(-12.71068, 19.703445, 0), V(0, 0, 1), 0.5), math.radians(-73.88964), math.radians(75.068583)), False)
sketch11.addConstraint(Sketcher.Constraint("Coincident", 0, 2, 1, 1))
sketch11.addConstraint(Sketcher.Constraint("Coincident", 1, 2, 2, 1))
sketch11.addConstraint(Sketcher.Constraint("Coincident", 2, 2, 3, 1))
sketch11.addConstraint(Sketcher.Constraint("Coincident", 3, 2, 4, 1))
sketch11.addConstraint(Sketcher.Constraint("Coincident", 4, 2, 5, 1))
sketch11.addConstraint(Sketcher.Constraint("Coincident", 5, 2, 6, 1))
sketch11.addConstraint(Sketcher.Constraint("Coincident", 6, 2, 7, 1))
sketch11.addConstraint(Sketcher.Constraint("Coincident", 7, 2, 8, 1))
sketch11.addConstraint(Sketcher.Constraint("Coincident", 8, 2, 9, 1))
sketch11.addConstraint(Sketcher.Constraint("Coincident", 9, 2, 0, 1))
sketch11.addConstraint(Sketcher.Constraint("Coincident", 10, 2, 11, 1))
sketch11.addConstraint(Sketcher.Constraint("Coincident", 11, 2, 12, 1))
sketch11.addConstraint(Sketcher.Constraint("Coincident", 12, 2, 13, 1))
sketch11.addConstraint(Sketcher.Constraint("Coincident", 13, 2, 14, 1))
sketch11.addConstraint(Sketcher.Constraint("Coincident", 14, 2, 15, 1))
sketch11.addConstraint(Sketcher.Constraint("Coincident", 15, 2, 10, 1))
sketch11.addConstraint(Sketcher.Constraint("Coincident", 16, 2, 17, 1))
sketch11.addConstraint(Sketcher.Constraint("Coincident", 17, 2, 18, 1))
sketch11.addConstraint(Sketcher.Constraint("Coincident", 18, 2, 19, 1))
sketch11.addConstraint(Sketcher.Constraint("Coincident", 19, 2, 20, 1))
sketch11.addConstraint(Sketcher.Constraint("Coincident", 20, 2, 21, 1))
sketch11.addConstraint(Sketcher.Constraint("Coincident", 21, 2, 16, 1))
sketch11.addConstraint(Sketcher.Constraint("Horizontal", 8))
sketch11.addConstraint(Sketcher.Constraint("Coincident", 20, 3, 12, 3))
sketch11.addConstraint(Sketcher.Constraint("Radius", 1, Q("1 mm")))
sketch11.addConstraint(Sketcher.Constraint("Radius", 3, Q("1 mm")))
sketch11.addConstraint(Sketcher.Constraint("Radius", 5, Q("1 mm")))
sketch11.addConstraint(Sketcher.Constraint("Radius", 7, Q("1 mm")))
sketch11.addConstraint(Sketcher.Constraint("Radius", 9, Q("1 mm")))
sketch11.addConstraint(Sketcher.Constraint("Radius", 12, Q("61 mm")))
sketch11.addConstraint(Sketcher.Constraint("Radius", 15, Q("1 mm")))
sketch11.addConstraint(Sketcher.Constraint("Radius", 17, Q("1 mm")))
sketch11.addConstraint(Sketcher.Constraint("Radius", 20, Q("61 mm")))
sketch11.addConstraint(Sketcher.Constraint("Radius", 11, Q("0.5 mm")))
sketch11.addConstraint(Sketcher.Constraint("Radius", 13, Q("0.5 mm")))
sketch11.addConstraint(Sketcher.Constraint("Radius", 19, Q("0.5 mm")))
sketch11.addConstraint(Sketcher.Constraint("Radius", 21, Q("0.5 mm")))
sketch11.addConstraint(Sketcher.Constraint("DistanceY", 1, 3, 0, 2, Q("0.529999 mm")))
sketch11.addConstraint(Sketcher.Constraint("DistanceY", 5, 3, 5, 2, Q("0.529999 mm")))
sketch11.addConstraint(Sketcher.Constraint("DistanceY", 7, 3, 6, 2, Q("0.529999 mm")))
sketch11.addConstraint(Sketcher.Constraint("DistanceY", 9, 2, 8, 2, Q("0.470001 mm")))
sketch11.addConstraint(Sketcher.Constraint("DistanceX", 7, 2, 6, 2, Q("0.847998 mm")))
sketch11.addConstraint(Sketcher.Constraint("DistanceX", 9, 2, 8, 2, Q("0.847998 mm")))
sketch11.addConstraint(Sketcher.Constraint("DistanceX", 8, 2, 8, 1, Q("2.566019 mm")))
sketch11.addConstraint(Sketcher.Constraint("DistanceY", -1, 1, 7, 3, Q("29.535898 mm")))
sketch11.addConstraint(Sketcher.Constraint("DistanceX", 2, 2, -1, 1, Q("30.091801 mm")))
sketch11.addConstraint(Sketcher.Constraint("DistanceX", 13, 3, 5, 3, Q("8.542799 mm")))
sketch11.addConstraint(Sketcher.Constraint("DistanceY", 11, 3, 15, 3, Q("1.488502 mm")))
sketch11.addConstraint(Sketcher.Constraint("DistanceX", 1, 3, 19, 3, Q("8.542799 mm")))
sketch11.addConstraint(Sketcher.Constraint("DistanceY", 21, 3, 17, 3, Q("1.488502 mm")))
sketch11.addConstraint(Sketcher.Constraint("DistanceX", 14, 2, 1, 2, Q("2.835199 mm")))
sketch11.addConstraint(Sketcher.Constraint("DistanceY", 14, 2, 1, 2, Q("0.395599 mm")))
sketch11.addConstraint(Sketcher.Constraint("DistanceX", 14, 2, 13, 2, Q("5.670602 mm")))
sketch11.addConstraint(Sketcher.Constraint("DistanceX", 4, 2, 17, 2, Q("2.835199 mm")))
sketch11.addConstraint(Sketcher.Constraint("DistanceY", 17, 2, 4, 2, Q("0.395599 mm")))
sketch11.addConstraint(Sketcher.Constraint("DistanceY", 20, 2, 16, 2, Q("2.935101 mm")))
sketch11.addConstraint(Sketcher.Constraint("Distance", 0, Q("7.474139 mm")))
sketch11.addConstraint(Sketcher.Constraint("Distance", 2, Q("6.513459 mm")))
sketch11.addConstraint(Sketcher.Constraint("Distance", 4, Q("6.513459 mm")))
sketch11.addConstraint(Sketcher.Constraint("Distance", 6, Q("7.474139 mm")))
sketch11.addConstraint(Sketcher.Constraint("Distance", 10, Q("7.65194 mm")))
sketch11.addConstraint(Sketcher.Constraint("Distance", 16, Q("7.65194 mm")))
sketch11.addConstraint(Sketcher.Constraint("DistanceX", 1, 3, -1, 1, Q("34.743022 mm")))
sketch11.addConstraint(Sketcher.Constraint("DistanceY", -1, 1, 1, 3, Q("23.197841 mm")))
sketch11.addConstraint(Sketcher.Constraint("DistanceX", 5, 3, -1, 1, Q("24.254432 mm")))
sketch11.addConstraint(Sketcher.Constraint("DistanceY", -1, 1, 12, 3, Q("77.82755 mm")))
sketch11.addConstraint(Sketcher.Constraint("DistanceX", 15, 3, -1, 1, Q("38.76437 mm")))
sketch11.addConstraint(Sketcher.Constraint("DistanceX", 21, 3, -1, 1, Q("12.71068 mm")))
sketch11.addConstraint(Sketcher.Constraint("DistanceY", -1, 1, 11, 2, Q("19.223081 mm")))
sketch11.addConstraint(Sketcher.Constraint("DistanceX", 12, 2, -1, 1, Q("32.824491 mm")))
sketch11.addConstraint(Sketcher.Constraint("DistanceY", -1, 1, 12, 2, Q("16.918279 mm")))
sketch11.addConstraint(Sketcher.Constraint("DistanceY", -1, 1, 13, 2, Q("17.820109 mm")))
sketch11.addConstraint(Sketcher.Constraint("DistanceY", -1, 1, 15, 2, Q("22.158182 mm")))
sketch11.addConstraint(Sketcher.Constraint("DistanceX", 16, 2, -1, 1, Q("19.975421 mm")))
sketch11.addConstraint(Sketcher.Constraint("DistanceX", 17, 2, -1, 1, Q("20.826158 mm")))
sketch11.addConstraint(Sketcher.Constraint("DistanceX", 18, 2, -1, 1, Q("26.49676 mm")))
sketch11.addConstraint(Sketcher.Constraint("DistanceY", -1, 1, 19, 2, Q("16.918279 mm")))
sketch11.addConstraint(Sketcher.Constraint("DistanceX", 3, 3, 7, 3, Q("1.283009 mm")))
pocket6 = body.newObject("PartDesign::Pocket", "Pocket005")
pocket6.Profile = sketch11
pocket6.Length = 40

doc.recompute()
